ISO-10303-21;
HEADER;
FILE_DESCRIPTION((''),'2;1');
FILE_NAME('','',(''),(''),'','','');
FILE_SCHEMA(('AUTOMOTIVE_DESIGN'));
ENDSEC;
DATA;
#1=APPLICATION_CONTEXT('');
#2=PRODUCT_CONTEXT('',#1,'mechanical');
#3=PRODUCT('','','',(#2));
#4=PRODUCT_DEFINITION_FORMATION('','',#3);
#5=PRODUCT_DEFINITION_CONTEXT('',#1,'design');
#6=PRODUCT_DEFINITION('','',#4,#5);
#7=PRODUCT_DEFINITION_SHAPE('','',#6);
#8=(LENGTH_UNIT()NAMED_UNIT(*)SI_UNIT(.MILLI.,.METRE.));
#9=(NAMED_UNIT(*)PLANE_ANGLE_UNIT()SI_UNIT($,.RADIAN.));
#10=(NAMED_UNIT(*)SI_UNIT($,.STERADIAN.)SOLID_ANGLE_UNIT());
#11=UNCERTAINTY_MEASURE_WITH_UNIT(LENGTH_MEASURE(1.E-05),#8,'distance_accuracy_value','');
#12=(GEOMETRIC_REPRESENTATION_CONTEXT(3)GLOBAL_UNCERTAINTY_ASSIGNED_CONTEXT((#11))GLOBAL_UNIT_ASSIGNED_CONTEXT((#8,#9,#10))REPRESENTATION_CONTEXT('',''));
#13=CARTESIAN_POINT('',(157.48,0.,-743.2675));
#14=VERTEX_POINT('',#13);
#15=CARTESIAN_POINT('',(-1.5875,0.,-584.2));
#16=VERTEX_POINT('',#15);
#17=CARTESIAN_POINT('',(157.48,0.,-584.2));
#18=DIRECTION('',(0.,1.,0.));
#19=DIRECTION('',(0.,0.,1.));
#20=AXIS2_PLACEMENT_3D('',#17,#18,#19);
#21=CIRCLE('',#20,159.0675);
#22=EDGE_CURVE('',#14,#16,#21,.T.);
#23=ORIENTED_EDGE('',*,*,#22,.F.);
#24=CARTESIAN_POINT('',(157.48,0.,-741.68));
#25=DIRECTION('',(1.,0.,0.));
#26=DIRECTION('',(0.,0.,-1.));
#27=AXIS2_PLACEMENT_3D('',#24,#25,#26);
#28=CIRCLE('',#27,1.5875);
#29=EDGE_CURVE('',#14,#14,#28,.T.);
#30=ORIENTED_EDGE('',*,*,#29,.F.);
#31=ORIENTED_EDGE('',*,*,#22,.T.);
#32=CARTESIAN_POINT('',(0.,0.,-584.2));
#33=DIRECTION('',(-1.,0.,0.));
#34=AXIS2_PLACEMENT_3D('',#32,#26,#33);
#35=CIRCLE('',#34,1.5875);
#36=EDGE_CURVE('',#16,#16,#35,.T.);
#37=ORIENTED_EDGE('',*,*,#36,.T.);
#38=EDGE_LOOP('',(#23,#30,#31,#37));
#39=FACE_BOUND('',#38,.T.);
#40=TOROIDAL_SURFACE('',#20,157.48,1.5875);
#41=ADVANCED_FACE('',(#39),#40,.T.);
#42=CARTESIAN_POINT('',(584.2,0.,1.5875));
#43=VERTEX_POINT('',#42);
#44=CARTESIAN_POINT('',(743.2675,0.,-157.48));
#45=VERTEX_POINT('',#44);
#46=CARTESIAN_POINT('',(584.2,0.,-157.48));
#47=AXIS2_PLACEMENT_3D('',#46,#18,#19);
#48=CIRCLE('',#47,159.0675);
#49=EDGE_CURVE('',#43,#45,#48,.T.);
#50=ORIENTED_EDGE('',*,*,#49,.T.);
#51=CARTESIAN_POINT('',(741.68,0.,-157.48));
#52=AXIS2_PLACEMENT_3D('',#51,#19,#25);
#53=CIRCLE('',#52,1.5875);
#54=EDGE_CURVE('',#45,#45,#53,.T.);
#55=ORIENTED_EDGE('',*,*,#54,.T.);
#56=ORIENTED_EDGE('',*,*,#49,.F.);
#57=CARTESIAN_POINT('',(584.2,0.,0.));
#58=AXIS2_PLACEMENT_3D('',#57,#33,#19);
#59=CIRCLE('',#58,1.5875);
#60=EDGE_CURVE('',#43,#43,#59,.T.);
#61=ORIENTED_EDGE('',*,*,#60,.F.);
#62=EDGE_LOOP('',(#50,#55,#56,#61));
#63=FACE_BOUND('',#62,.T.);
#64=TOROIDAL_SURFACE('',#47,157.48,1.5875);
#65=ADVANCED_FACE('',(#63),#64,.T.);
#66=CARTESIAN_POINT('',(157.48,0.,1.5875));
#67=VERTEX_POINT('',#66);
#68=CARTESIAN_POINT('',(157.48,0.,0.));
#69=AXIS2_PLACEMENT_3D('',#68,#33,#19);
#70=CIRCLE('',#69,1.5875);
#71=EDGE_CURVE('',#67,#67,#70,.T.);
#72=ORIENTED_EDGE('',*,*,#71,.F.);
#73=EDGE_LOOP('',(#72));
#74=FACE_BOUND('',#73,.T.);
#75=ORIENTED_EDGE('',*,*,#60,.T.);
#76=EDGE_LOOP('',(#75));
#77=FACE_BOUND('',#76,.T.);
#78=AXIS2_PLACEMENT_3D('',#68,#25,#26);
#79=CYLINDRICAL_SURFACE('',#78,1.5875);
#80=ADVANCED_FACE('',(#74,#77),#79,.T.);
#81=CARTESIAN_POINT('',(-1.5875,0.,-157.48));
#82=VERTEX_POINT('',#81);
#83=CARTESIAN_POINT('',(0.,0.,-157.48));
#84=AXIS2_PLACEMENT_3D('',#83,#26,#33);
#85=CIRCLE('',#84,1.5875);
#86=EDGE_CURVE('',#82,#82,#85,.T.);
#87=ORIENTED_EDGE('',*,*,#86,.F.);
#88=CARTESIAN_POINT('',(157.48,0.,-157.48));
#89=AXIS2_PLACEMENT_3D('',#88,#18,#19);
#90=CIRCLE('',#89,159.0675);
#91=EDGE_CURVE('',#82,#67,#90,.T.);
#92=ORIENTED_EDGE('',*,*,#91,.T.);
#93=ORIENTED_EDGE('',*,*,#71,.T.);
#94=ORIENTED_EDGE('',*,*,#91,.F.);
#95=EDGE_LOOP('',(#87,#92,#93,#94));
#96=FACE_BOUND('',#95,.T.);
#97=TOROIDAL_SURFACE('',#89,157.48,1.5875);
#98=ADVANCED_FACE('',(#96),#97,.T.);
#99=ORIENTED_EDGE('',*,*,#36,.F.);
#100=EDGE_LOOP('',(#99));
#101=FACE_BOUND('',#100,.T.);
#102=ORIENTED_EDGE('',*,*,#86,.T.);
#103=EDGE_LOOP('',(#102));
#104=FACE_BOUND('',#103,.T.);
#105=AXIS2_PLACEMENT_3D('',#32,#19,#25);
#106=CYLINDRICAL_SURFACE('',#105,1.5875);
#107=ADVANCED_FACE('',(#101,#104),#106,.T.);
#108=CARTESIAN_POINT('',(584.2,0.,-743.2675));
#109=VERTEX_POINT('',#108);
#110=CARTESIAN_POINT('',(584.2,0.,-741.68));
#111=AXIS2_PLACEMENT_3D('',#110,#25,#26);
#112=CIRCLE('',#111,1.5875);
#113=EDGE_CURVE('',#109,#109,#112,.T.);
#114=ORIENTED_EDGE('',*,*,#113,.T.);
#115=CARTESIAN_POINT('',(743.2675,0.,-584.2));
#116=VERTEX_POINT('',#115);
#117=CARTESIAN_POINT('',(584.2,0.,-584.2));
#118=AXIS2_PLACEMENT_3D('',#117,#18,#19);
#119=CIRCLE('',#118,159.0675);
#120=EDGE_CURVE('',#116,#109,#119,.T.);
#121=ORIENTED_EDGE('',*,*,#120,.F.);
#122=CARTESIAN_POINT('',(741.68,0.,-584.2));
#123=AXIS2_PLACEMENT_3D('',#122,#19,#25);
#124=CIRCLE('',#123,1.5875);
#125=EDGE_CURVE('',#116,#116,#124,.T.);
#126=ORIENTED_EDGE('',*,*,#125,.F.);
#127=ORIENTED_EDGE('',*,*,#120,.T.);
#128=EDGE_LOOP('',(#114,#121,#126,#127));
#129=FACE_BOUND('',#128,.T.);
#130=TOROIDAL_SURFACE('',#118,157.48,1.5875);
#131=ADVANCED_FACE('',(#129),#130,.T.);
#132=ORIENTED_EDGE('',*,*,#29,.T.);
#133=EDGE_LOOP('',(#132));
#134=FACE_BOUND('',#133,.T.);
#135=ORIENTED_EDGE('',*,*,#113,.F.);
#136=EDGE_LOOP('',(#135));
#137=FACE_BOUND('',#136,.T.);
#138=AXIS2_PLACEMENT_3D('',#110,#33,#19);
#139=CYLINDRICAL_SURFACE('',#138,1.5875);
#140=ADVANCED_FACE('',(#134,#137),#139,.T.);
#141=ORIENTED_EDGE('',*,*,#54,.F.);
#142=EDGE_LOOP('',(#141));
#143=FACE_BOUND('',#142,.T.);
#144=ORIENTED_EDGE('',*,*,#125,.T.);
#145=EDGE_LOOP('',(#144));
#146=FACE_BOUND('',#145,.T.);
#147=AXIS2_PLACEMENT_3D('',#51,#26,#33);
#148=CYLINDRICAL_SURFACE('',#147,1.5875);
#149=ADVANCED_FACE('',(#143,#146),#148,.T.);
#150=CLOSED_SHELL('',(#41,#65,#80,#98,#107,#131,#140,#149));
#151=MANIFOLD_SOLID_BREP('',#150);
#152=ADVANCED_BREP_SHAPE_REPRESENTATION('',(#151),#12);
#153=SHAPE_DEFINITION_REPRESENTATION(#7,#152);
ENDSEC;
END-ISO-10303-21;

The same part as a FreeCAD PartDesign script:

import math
import FreeCAD as App
import Part
import Sketcher
Q = App.Units.Quantity

doc = App.newDocument("Part")
body = doc.addObject("PartDesign::Body", "Body")

# Sketch on XY plane
sketch1 = body.newObject("Sketcher::SketchObject", "Sketch")
sketch1.AttachmentSupport = (doc.getObject("XY_Plane"), [""])
sketch1.MapMode = "FlatFace"
sketch1.AttachmentOffset = App.Placement(App.Vector(0, 0, -6.2 * 25.4), App.Rotation())
sketch1.addGeometry(Part.Circle(App.Vector(0, 0, 0), App.Vector(0, 0, 1), 1.5875), False)
sketch1.addConstraint(Sketcher.Constraint("Coincident", 0, 3, -1, 1))
sketch1.addConstraint(Sketcher.Constraint("Diameter", 0, Q("0.125 in")))

# Sketch on XZ plane
sketch2 = body.newObject("Sketcher::SketchObject", "Sketch001")
sketch2.AttachmentSupport = (doc.getObject("XZ_Plane"), [""])
sketch2.MapMode = "FlatFace"
sketch2.addGeometry(Part.LineSegment(App.Vector(157.48, 0, 0), App.Vector(584.2, 0, 0)), False)
sketch2.addGeometry(Part.ArcOfCircle(Part.Circle(App.Vector(584.2, -157.48, 0), App.Vector(0, 0, 1), 157.48), math.radians(0), math.radians(90)), False)
sketch2.addGeometry(Part.LineSegment(App.Vector(741.68, -157.48, 0), App.Vector(741.68, -584.2, 0)), False)
sketch2.addGeometry(Part.ArcOfCircle(Part.Circle(App.Vector(584.2, -584.2, 0), App.Vector(0, 0, 1), 157.48), math.radians(-90), math.radians(0)), False)
sketch2.addGeometry(Part.LineSegment(App.Vector(584.2, -741.68, 0), App.Vector(157.48, -741.68, 0)), False)
sketch2.addGeometry(Part.ArcOfCircle(Part.Circle(App.Vector(157.48, -584.2, 0), App.Vector(0, 0, 1), 157.48), math.radians(-180), math.radians(-90)), False)
sketch2.addGeometry(Part.LineSegment(App.Vector(0, -584.2, 0), App.Vector(0, -157.48, 0)), False)
sketch2.addGeometry(Part.ArcOfCircle(Part.Circle(App.Vector(157.48, -157.48, 0), App.Vector(0, 0, 1), 157.48), math.radians(90), math.radians(180)), False)
sketch2.addConstraint(Sketcher.Constraint("Tangent", 0, 2, 1, 2))
sketch2.addConstraint(Sketcher.Constraint("Tangent", 1, 1, 2, 1))
sketch2.addConstraint(Sketcher.Constraint("Tangent", 2, 2, 3, 2))
sketch2.addConstraint(Sketcher.Constraint("Tangent", 3, 1, 4, 1))
sketch2.addConstraint(Sketcher.Constraint("Tangent", 4, 2, 5, 2))
sketch2.addConstraint(Sketcher.Constraint("Tangent", 5, 1, 6, 1))
sketch2.addConstraint(Sketcher.Constraint("Tangent", 6, 2, 7, 2))
sketch2.addConstraint(Sketcher.Constraint("Tangent", 7, 1, 0, 1))
sketch2.addConstraint(Sketcher.Constraint("Horizontal", 0))
sketch2.addConstraint(Sketcher.Constraint("Vertical", 2))
sketch2.addConstraint(Sketcher.Constraint("Horizontal", 4))
sketch2.addConstraint(Sketcher.Constraint("Vertical", 6))
sketch2.addConstraint(Sketcher.Constraint("Equal", 1, 3))
sketch2.addConstraint(Sketcher.Constraint("Equal", 3, 5))
sketch2.addConstraint(Sketcher.Constraint("Equal", 5, 7))
sketch2.addConstraint(Sketcher.Constraint("PointOnObject", 0, 2, -1))
sketch2.addConstraint(Sketcher.Constraint("PointOnObject", 5, 1, -2))
sketch2.addConstraint(Sketcher.Constraint("Equal", 4, 2))
sketch2.addConstraint(Sketcher.Constraint("Radius", 1, Q("6.2 in")))
sketch2.addConstraint(Sketcher.Constraint("DistanceX", 0, 1, 0, 2, Q("16.8 in")))
doc.recompute()

additivepipe = body.newObject("PartDesign::AdditivePipe", "AdditivePipe")
additivepipe.Profile = sketch1
additivepipe.Spine = (sketch2, ["Edge1", "Edge2", "Edge3", "Edge4", "Edge5", "Edge6", "Edge7", "Edge8"])

doc.recompute()
